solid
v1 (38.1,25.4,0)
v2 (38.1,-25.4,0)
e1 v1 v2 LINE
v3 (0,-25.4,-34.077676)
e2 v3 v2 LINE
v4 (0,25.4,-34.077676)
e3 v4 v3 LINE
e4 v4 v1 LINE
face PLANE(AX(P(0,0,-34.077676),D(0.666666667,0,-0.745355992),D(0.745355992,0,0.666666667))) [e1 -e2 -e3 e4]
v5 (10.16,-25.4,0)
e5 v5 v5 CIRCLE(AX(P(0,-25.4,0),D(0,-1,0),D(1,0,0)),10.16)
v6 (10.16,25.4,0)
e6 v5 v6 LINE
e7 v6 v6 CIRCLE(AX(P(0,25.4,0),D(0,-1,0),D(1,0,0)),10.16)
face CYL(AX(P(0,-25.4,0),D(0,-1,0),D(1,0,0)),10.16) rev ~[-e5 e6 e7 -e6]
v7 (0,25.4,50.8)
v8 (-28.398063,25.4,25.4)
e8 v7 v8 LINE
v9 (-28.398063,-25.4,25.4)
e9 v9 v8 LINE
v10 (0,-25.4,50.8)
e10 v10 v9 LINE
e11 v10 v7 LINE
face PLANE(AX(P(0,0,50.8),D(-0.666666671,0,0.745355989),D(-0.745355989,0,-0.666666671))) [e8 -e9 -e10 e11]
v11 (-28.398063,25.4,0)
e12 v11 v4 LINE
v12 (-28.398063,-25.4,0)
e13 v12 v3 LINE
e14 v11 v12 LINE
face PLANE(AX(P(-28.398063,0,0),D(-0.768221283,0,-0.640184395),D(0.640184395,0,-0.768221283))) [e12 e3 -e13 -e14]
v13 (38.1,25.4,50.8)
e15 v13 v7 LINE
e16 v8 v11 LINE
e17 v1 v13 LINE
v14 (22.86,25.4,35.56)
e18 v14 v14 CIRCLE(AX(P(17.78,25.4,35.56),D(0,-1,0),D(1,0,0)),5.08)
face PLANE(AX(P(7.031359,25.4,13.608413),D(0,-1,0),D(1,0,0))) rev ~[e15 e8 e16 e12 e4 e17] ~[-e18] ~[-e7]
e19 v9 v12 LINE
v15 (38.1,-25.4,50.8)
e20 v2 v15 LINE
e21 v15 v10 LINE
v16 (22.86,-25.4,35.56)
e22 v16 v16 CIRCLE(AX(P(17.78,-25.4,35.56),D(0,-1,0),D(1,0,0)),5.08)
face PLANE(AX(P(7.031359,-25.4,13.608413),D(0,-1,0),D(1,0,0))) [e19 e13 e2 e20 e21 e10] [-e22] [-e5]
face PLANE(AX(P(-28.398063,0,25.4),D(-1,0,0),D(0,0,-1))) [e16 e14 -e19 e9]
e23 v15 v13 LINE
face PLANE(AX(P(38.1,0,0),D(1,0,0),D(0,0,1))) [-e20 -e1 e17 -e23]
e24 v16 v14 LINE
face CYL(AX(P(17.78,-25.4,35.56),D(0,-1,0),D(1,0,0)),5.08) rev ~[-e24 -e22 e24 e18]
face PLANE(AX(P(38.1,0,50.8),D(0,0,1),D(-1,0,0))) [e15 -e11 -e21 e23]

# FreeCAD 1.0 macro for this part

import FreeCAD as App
import Part
import Sketcher

V = App.Vector
Q = App.Units.Quantity

doc = App.newDocument("Part")
params = doc.addObject("Spreadsheet::Sheet", "Params")
for row, (alias, value) in enumerate([
    ("sketch1_height", "1 in"),
    ("sketch1_height2", "2 in"),
    ("sketch1_width", "1.5 in"),
    ("sketch1_length", "1.5 in"),
    ("pad1_length", "1 in"),
    ("pad1_length2", "1 in"),
    ("sketch2_diameter", "0.8 in"),
    ("sketch2_diameter2", "0.4 in"),
], start=1):
    params.set(f"A{row}", alias)
    params.set(f"B{row}", "=" + value)
    params.setAlias(f"B{row}", alias)

body = doc.addObject("PartDesign::Body", "Body")

sketch1 = body.newObject("Sketcher::SketchObject", "Sketch")
sketch1.AttachmentSupport = (doc.getObject("XZ_Plane"), [""])
sketch1.MapMode = "FlatFace"
sketch1.addGeometry(Part.LineSegment(V(-28.398063, 25.4, 0), V(-28.398063, 0, 0)), False)
sketch1.addGeometry(Part.LineSegment(V(-28.398063, 0, 0), V(0, -34.077676, 0)), False)
sketch1.addGeometry(Part.LineSegment(V(0, -34.077676, 0), V(38.1, 0, 0)), False)
sketch1.addGeometry(Part.LineSegment(V(38.1, 0, 0), V(38.1, 50.8, 0)), False)
sketch1.addGeometry(Part.LineSegment(V(38.1, 50.8, 0), V(0, 50.8, 0)), False)
sketch1.addGeometry(Part.LineSegment(V(0, 50.8, 0), V(-28.398063, 25.4, 0)), False)
sketch1.addConstraint(Sketcher.Constraint("Coincident", 0, 2, 1, 1))
sketch1.addConstraint(Sketcher.Constraint("Coincident", 1, 2, 2, 1))
sketch1.addConstraint(Sketcher.Constraint("Coincident", 2, 2, 3, 1))
sketch1.addConstraint(Sketcher.Constraint("Coincident", 3, 2, 4, 1))
sketch1.addConstraint(Sketcher.Constraint("Coincident", 4, 2, 5, 1))
sketch1.addConstraint(Sketcher.Constraint("Coincident", 5, 2, 0, 1))
sketch1.addConstraint(Sketcher.Constraint("Vertical", 0))
sketch1.addConstraint(Sketcher.Constraint("Vertical", 3))
sketch1.addConstraint(Sketcher.Constraint("Horizontal", 4))
sketch1.addConstraint(Sketcher.Constraint("PointOnObject", 0, 2, -1))
sketch1.addConstraint(Sketcher.Constraint("PointOnObject", 1, 2, -2))
sketch1.addConstraint(Sketcher.Constraint("PointOnObject", 2, 2, -1))
sketch1.addConstraint(Sketcher.Constraint("PointOnObject", 4, 2, -2))
sketch1.addConstraint(Sketcher.Constraint("Parallel", 2, 5))
sketch1.addConstraint(Sketcher.Constraint("DistanceY", 0, 2, 0, 1, Q("1 in")))
sketch1.addConstraint(Sketcher.Constraint("DistanceY", 3, 1, 3, 2, Q("2 in")))
sketch1.addConstraint(Sketcher.Constraint("DistanceX", 4, 2, 4, 1, Q("1.5 in")))
sketch1.addConstraint(Sketcher.Constraint("Distance", 5, Q("1.5 in")))
sketch1.setExpression("Constraints[14]", "Params.sketch1_height")
sketch1.setExpression("Constraints[15]", "Params.sketch1_height2")
sketch1.setExpression("Constraints[16]", "Params.sketch1_width")
sketch1.setExpression("Constraints[17]", "Params.sketch1_length")
pad1 = body.newObject("PartDesign::Pad", "Pad")
pad1.Profile = sketch1
pad1.Type = "TwoLengths"
pad1.setExpression("Length", "Params.pad1_length")
pad1.setExpression("Length2", "Params.pad1_length2")

sketch2 = body.newObject("Sketcher::SketchObject", "Sketch001")
sketch2.AttachmentSupport = (doc.getObject("XZ_Plane"), [""])
sketch2.MapMode = "FlatFace"
sketch2.AttachmentOffset = App.Placement(V(0, 0, 1 * 25.4), App.Rotation())
sketch2.addGeometry(Part.Circle(V(0, 0, 0), V(0, 0, 1), 10.16), False)
sketch2.addGeometry(Part.Circle(V(17.78, 35.56, 0), V(0, 0, 1), 5.08), False)
sketch2.addConstraint(Sketcher.Constraint("Coincident", 0, 3, -1, 1))
sketch2.addConstraint(Sketcher.Constraint("Diameter", 0, Q("0.8 in")))
sketch2.addConstraint(Sketcher.Constraint("Diameter", 1, Q("0.4 in")))
sketch2.addConstraint(Sketcher.Constraint("DistanceX", -1, 1, 1, 3, Q("0.7 in")))
sketch2.addConstraint(Sketcher.Constraint("DistanceY", -1, 1, 1, 3, Q("1.4 in")))
sketch2.setExpression("Constraints[1]", "Params.sketch2_diameter")
sketch2.setExpression("Constraints[2]", "Params.sketch2_diameter2")
pocket1 = body.newObject("PartDesign::Pocket", "Pocket")
pocket1.Profile = sketch2
pocket1.Type = "ThroughAll"

doc.recompute()
